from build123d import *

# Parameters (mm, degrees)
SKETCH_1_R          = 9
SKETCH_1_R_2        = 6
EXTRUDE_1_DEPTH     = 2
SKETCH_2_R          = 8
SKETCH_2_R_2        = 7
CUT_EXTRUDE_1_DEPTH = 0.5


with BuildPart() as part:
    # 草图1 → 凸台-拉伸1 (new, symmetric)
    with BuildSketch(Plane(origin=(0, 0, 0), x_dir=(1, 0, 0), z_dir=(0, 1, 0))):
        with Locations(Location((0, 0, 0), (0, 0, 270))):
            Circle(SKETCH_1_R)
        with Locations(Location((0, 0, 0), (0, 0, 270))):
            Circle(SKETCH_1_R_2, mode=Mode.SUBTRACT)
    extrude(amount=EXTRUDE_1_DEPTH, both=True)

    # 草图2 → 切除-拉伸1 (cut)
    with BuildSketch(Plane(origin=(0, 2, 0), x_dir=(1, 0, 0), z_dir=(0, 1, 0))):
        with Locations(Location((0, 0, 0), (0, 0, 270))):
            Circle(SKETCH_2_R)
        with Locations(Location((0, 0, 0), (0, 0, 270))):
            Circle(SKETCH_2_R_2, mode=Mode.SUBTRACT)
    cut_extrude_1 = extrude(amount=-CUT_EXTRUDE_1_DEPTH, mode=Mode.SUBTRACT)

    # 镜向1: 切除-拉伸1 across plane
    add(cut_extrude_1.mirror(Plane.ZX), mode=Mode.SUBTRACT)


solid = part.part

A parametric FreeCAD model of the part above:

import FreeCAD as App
import Part
import Sketcher

V = App.Vector
Q = App.Units.Quantity

doc = App.newDocument("Part")
body = doc.addObject("PartDesign::Body", "Body")

sketch1 = doc.addObject("Sketcher::SketchObject", "Sketch")
body.addObject(sketch1)
sketch1.AttachmentSupport = (doc.XZ_Plane, [""])
sketch1.MapMode = "FlatFace"
sketch1.addGeometry(Part.Circle(V(0, 0, 0), V(0, 0, 1), 9), False)
sketch1.addGeometry(Part.Circle(V(0, 0, 0), V(0, 0, 1), 6), False)
sketch1.addConstraint(Sketcher.Constraint("Coincident", 0, 3, -1, 1))
sketch1.addConstraint(Sketcher.Constraint("Coincident", 1, 3, -1, 1))
sketch1.addConstraint(Sketcher.Constraint("Diameter", 0, Q("18 mm")))
sketch1.addConstraint(Sketcher.Constraint("Diameter", 1, Q("12 mm")))
pad1 = doc.addObject("PartDesign::Pad", "Pad")
body.addObject(pad1)
pad1.Profile = sketch1
pad1.Length = 4
pad1.Midplane = True

sketch2 = doc.addObject("Sketcher::SketchObject", "Sketch001")
body.addObject(sketch2)
sketch2.AttachmentSupport = (doc.XZ_Plane, [""])
sketch2.MapMode = "FlatFace"
sketch2.AttachmentOffset = App.Placement(V(0, 0, -2), App.Rotation())
sketch2.addGeometry(Part.Circle(V(0, 0, 0), V(0, 0, 1), 8), False)
sketch2.addGeometry(Part.Circle(V(0, 0, 0), V(0, 0, 1), 7), False)
sketch2.addConstraint(Sketcher.Constraint("Coincident", 0, 3, -1, 1))
sketch2.addConstraint(Sketcher.Constraint("Coincident", 1, 3, -1, 1))
sketch2.addConstraint(Sketcher.Constraint("Diameter", 0, Q("16 mm")))
sketch2.addConstraint(Sketcher.Constraint("Diameter", 1, Q("14 mm")))
pocket1 = doc.addObject("PartDesign::Pocket", "Pocket")
body.addObject(pocket1)
pocket1.Profile = sketch2
pocket1.Length = 0.5
pocket1.Reversed = True
doc.recompute()

mirrored = doc.addObject("PartDesign::Mirrored", "Mirrored")
body.addObject(mirrored)
mirrored.Originals = [pocket1]
mirrored.MirrorPlane = (doc.XZ_Plane, [""])
body.Tip = mirrored

doc.recompute()
